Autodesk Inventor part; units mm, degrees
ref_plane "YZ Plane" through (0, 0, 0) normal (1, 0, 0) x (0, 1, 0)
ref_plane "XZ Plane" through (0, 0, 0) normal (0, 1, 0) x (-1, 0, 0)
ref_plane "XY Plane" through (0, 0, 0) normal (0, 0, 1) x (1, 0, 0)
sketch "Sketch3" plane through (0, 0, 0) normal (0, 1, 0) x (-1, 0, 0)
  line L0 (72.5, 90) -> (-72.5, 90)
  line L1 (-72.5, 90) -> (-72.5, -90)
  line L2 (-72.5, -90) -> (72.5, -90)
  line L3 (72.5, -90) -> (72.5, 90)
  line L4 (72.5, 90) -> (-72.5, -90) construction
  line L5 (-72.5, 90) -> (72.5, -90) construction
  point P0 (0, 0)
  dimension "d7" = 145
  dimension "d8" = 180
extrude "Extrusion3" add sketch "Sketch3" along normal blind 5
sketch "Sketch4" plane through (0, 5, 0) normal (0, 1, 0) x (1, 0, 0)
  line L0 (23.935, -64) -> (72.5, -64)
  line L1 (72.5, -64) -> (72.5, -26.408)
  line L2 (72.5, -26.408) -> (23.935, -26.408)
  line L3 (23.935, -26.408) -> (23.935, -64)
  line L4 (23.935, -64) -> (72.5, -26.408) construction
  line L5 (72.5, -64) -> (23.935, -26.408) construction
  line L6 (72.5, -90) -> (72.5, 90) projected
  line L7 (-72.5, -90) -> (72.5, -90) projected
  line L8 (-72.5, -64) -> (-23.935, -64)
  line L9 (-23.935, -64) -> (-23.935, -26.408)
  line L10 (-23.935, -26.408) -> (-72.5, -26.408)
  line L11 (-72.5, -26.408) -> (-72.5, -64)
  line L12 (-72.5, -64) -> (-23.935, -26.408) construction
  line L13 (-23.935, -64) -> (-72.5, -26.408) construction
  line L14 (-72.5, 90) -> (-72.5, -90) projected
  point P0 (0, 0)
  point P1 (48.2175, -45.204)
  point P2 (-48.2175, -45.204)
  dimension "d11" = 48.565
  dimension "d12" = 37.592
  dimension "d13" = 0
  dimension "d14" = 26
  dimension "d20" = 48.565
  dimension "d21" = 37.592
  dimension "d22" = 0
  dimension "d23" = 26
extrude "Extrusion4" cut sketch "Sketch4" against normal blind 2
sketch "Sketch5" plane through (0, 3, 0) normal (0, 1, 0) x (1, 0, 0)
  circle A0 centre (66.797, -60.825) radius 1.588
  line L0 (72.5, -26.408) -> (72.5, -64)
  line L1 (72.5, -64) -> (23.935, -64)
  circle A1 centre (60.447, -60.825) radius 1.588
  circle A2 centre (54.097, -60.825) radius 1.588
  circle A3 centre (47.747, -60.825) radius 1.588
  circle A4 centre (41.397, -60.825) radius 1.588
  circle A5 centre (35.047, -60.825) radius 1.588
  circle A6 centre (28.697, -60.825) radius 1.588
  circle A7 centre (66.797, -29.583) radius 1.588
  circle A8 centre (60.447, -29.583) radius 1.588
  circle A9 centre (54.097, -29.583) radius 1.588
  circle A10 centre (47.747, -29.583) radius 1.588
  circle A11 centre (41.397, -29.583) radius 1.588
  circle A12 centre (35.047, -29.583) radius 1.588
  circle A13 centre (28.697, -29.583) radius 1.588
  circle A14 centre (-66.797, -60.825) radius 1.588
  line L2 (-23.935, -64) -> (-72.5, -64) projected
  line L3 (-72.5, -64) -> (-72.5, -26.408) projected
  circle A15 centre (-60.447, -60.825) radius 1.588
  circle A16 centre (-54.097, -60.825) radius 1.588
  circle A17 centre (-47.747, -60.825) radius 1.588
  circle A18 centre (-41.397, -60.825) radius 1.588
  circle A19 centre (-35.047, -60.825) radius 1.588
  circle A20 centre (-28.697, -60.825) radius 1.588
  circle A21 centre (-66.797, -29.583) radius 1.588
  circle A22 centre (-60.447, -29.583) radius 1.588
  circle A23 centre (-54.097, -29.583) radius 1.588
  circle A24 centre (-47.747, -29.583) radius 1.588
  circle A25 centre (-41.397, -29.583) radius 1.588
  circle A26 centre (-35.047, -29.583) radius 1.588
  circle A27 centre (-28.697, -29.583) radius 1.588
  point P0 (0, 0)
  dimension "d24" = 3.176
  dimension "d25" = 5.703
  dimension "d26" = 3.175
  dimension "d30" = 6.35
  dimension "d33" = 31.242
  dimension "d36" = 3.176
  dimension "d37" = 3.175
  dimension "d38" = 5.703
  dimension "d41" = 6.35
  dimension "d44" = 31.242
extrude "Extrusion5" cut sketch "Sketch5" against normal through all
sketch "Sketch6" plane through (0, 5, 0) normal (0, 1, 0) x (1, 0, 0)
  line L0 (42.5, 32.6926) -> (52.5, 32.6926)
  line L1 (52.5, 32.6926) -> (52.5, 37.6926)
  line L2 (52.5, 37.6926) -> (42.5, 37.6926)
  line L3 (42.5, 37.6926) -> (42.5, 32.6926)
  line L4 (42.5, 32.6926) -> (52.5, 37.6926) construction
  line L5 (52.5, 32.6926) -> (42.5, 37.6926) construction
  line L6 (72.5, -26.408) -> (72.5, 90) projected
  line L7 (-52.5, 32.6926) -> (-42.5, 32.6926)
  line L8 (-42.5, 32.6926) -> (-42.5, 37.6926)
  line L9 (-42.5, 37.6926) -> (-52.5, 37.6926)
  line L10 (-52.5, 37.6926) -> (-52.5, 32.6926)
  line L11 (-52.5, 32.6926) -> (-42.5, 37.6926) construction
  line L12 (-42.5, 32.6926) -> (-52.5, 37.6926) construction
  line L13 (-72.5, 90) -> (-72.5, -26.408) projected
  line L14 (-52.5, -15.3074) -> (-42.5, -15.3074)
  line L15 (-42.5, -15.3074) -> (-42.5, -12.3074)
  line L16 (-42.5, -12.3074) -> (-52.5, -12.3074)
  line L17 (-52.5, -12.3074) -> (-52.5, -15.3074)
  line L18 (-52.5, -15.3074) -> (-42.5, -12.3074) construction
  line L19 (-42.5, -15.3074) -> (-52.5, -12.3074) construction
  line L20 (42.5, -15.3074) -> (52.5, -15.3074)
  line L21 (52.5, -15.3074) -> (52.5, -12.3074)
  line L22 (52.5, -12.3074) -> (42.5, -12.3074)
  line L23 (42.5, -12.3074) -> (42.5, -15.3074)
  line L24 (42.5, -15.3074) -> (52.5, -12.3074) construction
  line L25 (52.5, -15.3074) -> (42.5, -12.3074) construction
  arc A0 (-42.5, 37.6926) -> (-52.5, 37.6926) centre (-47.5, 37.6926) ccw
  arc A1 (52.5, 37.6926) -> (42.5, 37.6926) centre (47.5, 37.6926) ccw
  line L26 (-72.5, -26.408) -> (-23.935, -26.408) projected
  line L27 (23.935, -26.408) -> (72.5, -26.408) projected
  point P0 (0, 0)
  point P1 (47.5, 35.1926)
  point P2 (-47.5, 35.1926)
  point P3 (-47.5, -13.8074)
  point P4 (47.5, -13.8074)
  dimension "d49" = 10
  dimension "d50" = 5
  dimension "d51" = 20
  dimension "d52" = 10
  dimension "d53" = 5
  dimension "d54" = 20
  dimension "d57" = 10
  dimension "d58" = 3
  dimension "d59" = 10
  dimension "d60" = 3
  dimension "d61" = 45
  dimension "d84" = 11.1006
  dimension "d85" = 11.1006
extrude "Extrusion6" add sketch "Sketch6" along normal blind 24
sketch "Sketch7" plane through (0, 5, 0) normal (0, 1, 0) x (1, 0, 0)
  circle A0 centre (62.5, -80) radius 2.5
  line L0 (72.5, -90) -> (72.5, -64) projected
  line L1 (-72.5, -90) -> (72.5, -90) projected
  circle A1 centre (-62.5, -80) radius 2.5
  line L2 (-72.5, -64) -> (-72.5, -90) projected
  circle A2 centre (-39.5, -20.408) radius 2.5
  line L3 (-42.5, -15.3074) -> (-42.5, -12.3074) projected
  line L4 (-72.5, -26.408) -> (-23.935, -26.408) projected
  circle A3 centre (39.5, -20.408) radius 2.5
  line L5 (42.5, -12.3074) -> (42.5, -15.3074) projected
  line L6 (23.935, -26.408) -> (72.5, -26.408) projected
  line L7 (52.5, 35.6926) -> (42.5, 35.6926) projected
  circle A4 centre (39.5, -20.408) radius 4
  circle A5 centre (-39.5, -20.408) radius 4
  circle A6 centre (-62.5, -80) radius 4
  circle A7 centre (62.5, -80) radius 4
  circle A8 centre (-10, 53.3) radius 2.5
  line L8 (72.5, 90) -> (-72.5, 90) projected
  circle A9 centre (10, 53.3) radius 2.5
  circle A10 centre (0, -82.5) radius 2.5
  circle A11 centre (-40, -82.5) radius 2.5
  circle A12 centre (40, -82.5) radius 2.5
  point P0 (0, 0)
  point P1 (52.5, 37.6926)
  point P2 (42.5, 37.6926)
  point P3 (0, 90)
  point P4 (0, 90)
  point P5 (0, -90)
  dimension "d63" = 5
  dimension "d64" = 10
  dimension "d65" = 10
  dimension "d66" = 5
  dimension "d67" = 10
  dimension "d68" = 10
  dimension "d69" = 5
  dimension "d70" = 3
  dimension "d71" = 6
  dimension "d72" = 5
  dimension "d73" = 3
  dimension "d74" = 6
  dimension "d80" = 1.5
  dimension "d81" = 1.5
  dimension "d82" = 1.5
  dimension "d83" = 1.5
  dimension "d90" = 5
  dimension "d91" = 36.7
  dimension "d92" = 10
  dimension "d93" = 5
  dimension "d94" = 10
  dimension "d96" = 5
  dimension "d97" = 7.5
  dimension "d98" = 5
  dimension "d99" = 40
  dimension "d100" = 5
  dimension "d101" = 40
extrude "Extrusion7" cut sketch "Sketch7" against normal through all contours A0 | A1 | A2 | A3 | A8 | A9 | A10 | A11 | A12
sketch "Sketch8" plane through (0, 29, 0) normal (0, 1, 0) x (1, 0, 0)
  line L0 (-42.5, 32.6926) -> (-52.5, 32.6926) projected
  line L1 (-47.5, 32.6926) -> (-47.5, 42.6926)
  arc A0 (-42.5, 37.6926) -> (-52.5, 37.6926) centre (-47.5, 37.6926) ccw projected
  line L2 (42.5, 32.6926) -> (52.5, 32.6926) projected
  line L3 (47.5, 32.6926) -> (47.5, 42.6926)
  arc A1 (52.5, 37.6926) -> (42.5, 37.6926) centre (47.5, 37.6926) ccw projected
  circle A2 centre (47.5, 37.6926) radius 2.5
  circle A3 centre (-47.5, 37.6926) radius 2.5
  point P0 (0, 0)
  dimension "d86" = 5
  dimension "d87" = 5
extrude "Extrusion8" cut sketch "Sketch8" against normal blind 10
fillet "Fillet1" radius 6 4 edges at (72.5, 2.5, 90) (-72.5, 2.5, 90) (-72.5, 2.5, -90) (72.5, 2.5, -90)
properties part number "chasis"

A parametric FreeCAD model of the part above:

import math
import FreeCAD as App
import Part
import Sketcher
from FreeCAD import Vector
Q = App.Units.Quantity


def edges_at(feature, points):
    """Names of the edges that pass closest to the given points."""
    edges = feature.Shape.Edges
    near = lambda p: min(range(len(edges)), key=lambda i: edges[i].distToShape(Part.Vertex(*p))[0])
    return sorted({f"Edge{near(p) + 1}" for p in points})

doc = App.newDocument("Part")
body = doc.addObject("PartDesign::Body", "Body")

sketch1 = body.newObject("Sketcher::SketchObject", "Sketch")
sketch1.AttachmentSupport = (doc.getObject("XZ_Plane"), [""])
sketch1.MapMode = "FlatFace"
sketch1.addGeometry([
    Part.LineSegment(Vector(-72, -90, 0), Vector(-72, 90, 0)),
    Part.LineSegment(Vector(-72, 90, 0), Vector(72, 90, 0)),
    Part.LineSegment(Vector(72, 90, 0), Vector(72, -90, 0)),
    Part.LineSegment(Vector(72, -90, 0), Vector(-72, -90, 0)),
], False)
sketch1.addConstraint([
    Sketcher.Constraint("Coincident", 0, 2, 1, 1),
    Sketcher.Constraint("Coincident", 1, 2, 2, 1),
    Sketcher.Constraint("Coincident", 2, 2, 3, 1),
    Sketcher.Constraint("Coincident", 3, 2, 0, 1),
    Sketcher.Constraint("Vertical", 0),
    Sketcher.Constraint("Horizontal", 1),
    Sketcher.Constraint("Vertical", 2),
    Sketcher.Constraint("Horizontal", 3),
    Sketcher.Constraint("Symmetric", 0, 2, 2, 2, -1, 1),
    Sketcher.Constraint("DistanceX", 1, 1, 1, 2, Q("145 mm")),
    Sketcher.Constraint("DistanceY", 0, 1, 0, 2, Q("180 mm")),
])
pad1 = body.newObject("PartDesign::Pad", "Pad")
pad1.Profile = sketch1
pad1.Length = 5
pad1.Reversed = True

sketch2 = body.newObject("Sketcher::SketchObject", "Sketch001")
sketch2.AttachmentSupport = (doc.getObject("XZ_Plane"), [""])
sketch2.MapMode = "FlatFace"
sketch2.AttachmentOffset = App.Placement(Vector(0, 0, -5), App.Rotation())
sketch2.addGeometry([
    Part.LineSegment(Vector(24, 26, 0), Vector(24, 64, 0)),
    Part.LineSegment(Vector(24, 64, 0), Vector(72, 64, 0)),
    Part.LineSegment(Vector(72, 64, 0), Vector(72, 26, 0)),
    Part.LineSegment(Vector(72, 26, 0), Vector(24, 26, 0)),
    Part.LineSegment(Vector(-72, 26, 0), Vector(-72, 64, 0)),
    Part.LineSegment(Vector(-72, 64, 0), Vector(-24, 64, 0)),
    Part.LineSegment(Vector(-24, 64, 0), Vector(-24, 26, 0)),
    Part.LineSegment(Vector(-24, 26, 0), Vector(-72, 26, 0)),
], False)
sketch2.addConstraint([
    Sketcher.Constraint("Coincident", 0, 2, 1, 1),
    Sketcher.Constraint("Coincident", 1, 2, 2, 1),
    Sketcher.Constraint("Coincident", 2, 2, 3, 1),
    Sketcher.Constraint("Coincident", 3, 2, 0, 1),
    Sketcher.Constraint("Coincident", 4, 2, 5, 1),
    Sketcher.Constraint("Coincident", 5, 2, 6, 1),
    Sketcher.Constraint("Coincident", 6, 2, 7, 1),
    Sketcher.Constraint("Coincident", 7, 2, 4, 1),
    Sketcher.Constraint("Vertical", 0),
    Sketcher.Constraint("Horizontal", 1),
    Sketcher.Constraint("Vertical", 2),
    Sketcher.Constraint("Horizontal", 3),
    Sketcher.Constraint("Vertical", 4),
    Sketcher.Constraint("Horizontal", 5),
    Sketcher.Constraint("Vertical", 6),
    Sketcher.Constraint("Horizontal", 7),
    Sketcher.Constraint("Symmetric", 1, 2, 4, 2, -2),
    Sketcher.Constraint("Symmetric", 3, 2, 6, 2, -2),
    Sketcher.Constraint("DistanceX", 1, 1, 1, 2, Q("48.565 mm")),
    Sketcher.Constraint("DistanceY", 0, 1, 0, 2, Q("37.592 mm")),
    Sketcher.Constraint("DistanceY", -1, 1, 0, 2, Q("64 mm")),
    Sketcher.Constraint("DistanceX", 4, 2, 1, 2, Q("145 mm")),
])
pocket1 = body.newObject("PartDesign::Pocket", "Pocket")
pocket1.Profile = sketch2
pocket1.Length = 2
pocket1.Reversed = True

sketch3 = body.newObject("Sketcher::SketchObject", "Sketch002")
sketch3.AttachmentSupport = (doc.getObject("XZ_Plane"), [""])
sketch3.MapMode = "FlatFace"
sketch3.AttachmentOffset = App.Placement(Vector(0, 0, -3), App.Rotation())
sketch3.addGeometry([
    Part.Circle(Vector(66.8, 60.8, 0), Vector(0, 0, 1), 1.6),
    Part.Circle(Vector(60.4, 60.8, 0), Vector(0, 0, 1), 1.6),
    Part.Circle(Vector(54.1, 60.8, 0), Vector(0, 0, 1), 1.6),
    Part.Circle(Vector(47.7, 60.8, 0), Vector(0, 0, 1), 1.6),
    Part.Circle(Vector(41.4, 60.8, 0), Vector(0, 0, 1), 1.6),
    Part.Circle(Vector(35, 60.8, 0), Vector(0, 0, 1), 1.6),
    Part.Circle(Vector(28.7, 60.8, 0), Vector(0, 0, 1), 1.6),
    Part.Circle(Vector(66.8, 29.6, 0), Vector(0, 0, 1), 1.6),
    Part.Circle(Vector(60.4, 29.6, 0), Vector(0, 0, 1), 1.6),
    Part.Circle(Vector(54.1, 29.6, 0), Vector(0, 0, 1), 1.6),
    Part.Circle(Vector(47.7, 29.6, 0), Vector(0, 0, 1), 1.6),
    Part.Circle(Vector(41.4, 29.6, 0), Vector(0, 0, 1), 1.6),
    Part.Circle(Vector(35, 29.6, 0), Vector(0, 0, 1), 1.6),
    Part.Circle(Vector(28.7, 29.6, 0), Vector(0, 0, 1), 1.6),
    Part.Circle(Vector(-66.8, 60.8, 0), Vector(0, 0, 1), 1.6),
    Part.Circle(Vector(-60.4, 60.8, 0), Vector(0, 0, 1), 1.6),
    Part.Circle(Vector(-54.1, 60.8, 0), Vector(0, 0, 1), 1.6),
    Part.Circle(Vector(-47.7, 60.8, 0), Vector(0, 0, 1), 1.6),
    Part.Circle(Vector(-41.4, 60.8, 0), Vector(0, 0, 1), 1.6),
    Part.Circle(Vector(-35, 60.8, 0), Vector(0, 0, 1), 1.6),
    Part.Circle(Vector(-28.7, 60.8, 0), Vector(0, 0, 1), 1.6),
    Part.Circle(Vector(-66.8, 29.6, 0), Vector(0, 0, 1), 1.6),
    Part.Circle(Vector(-60.4, 29.6, 0), Vector(0, 0, 1), 1.6),
    Part.Circle(Vector(-54.1, 29.6, 0), Vector(0, 0, 1), 1.6),
    Part.Circle(Vector(-47.7, 29.6, 0), Vector(0, 0, 1), 1.6),
    Part.Circle(Vector(-41.4, 29.6, 0), Vector(0, 0, 1), 1.6),
    Part.Circle(Vector(-35, 29.6, 0), Vector(0, 0, 1), 1.6),
    Part.Circle(Vector(-28.7, 29.6, 0), Vector(0, 0, 1), 1.6),
], False)
sketch3.addConstraint([
    Sketcher.Constraint("Equal", 0, 1),
    Sketcher.Constraint("Equal", 1, 2),
    Sketcher.Constraint("Equal", 2, 3),
    Sketcher.Constraint("Equal", 3, 4),
    Sketcher.Constraint("Equal", 4, 5),
    Sketcher.Constraint("Equal", 5, 6),
    Sketcher.Constraint("Equal", 6, 7),
    Sketcher.Constraint("Equal", 7, 8),
    Sketcher.Constraint("Equal", 8, 9),
    Sketcher.Constraint("Equal", 9, 10),
    Sketcher.Constraint("Equal", 10, 11),
    Sketcher.Constraint("Equal", 11, 12),
    Sketcher.Constraint("Equal", 12, 13),
    Sketcher.Constraint("Equal", 13, 14),
    Sketcher.Constraint("Equal", 14, 15),
    Sketcher.Constraint("Equal", 15, 16),
    Sketcher.Constraint("Equal", 16, 17),
    Sketcher.Constraint("Equal", 17, 18),
    Sketcher.Constraint("Equal", 18, 19),
    Sketcher.Constraint("Equal", 19, 20),
    Sketcher.Constraint("Equal", 20, 21),
    Sketcher.Constraint("Equal", 21, 22),
    Sketcher.Constraint("Equal", 22, 23),
    Sketcher.Constraint("Equal", 23, 24),
    Sketcher.Constraint("Equal", 24, 25),
    Sketcher.Constraint("Equal", 25, 26),
    Sketcher.Constraint("Equal", 26, 27),
    Sketcher.Constraint("Symmetric", 0, 3, 14, 3, -2),
    Sketcher.Constraint("Symmetric", 1, 3, 15, 3, -2),
    Sketcher.Constraint("Symmetric", 2, 3, 16, 3, -2),
    Sketcher.Constraint("Symmetric", 3, 3, 17, 3, -2),
    Sketcher.Constraint("Symmetric", 4, 3, 18, 3, -2),
    Sketcher.Constraint("Symmetric", 5, 3, 19, 3, -2),
    Sketcher.Constraint("Symmetric", 6, 3, 20, 3, -2),
    Sketcher.Constraint("Symmetric", 7, 3, 21, 3, -2),
    Sketcher.Constraint("Symmetric", 8, 3, 22, 3, -2),
    Sketcher.Constraint("Symmetric", 9, 3, 23, 3, -2),
    Sketcher.Constraint("Symmetric", 10, 3, 24, 3, -2),
    Sketcher.Constraint("Symmetric", 11, 3, 25, 3, -2),
    Sketcher.Constraint("Symmetric", 12, 3, 26, 3, -2),
    Sketcher.Constraint("Symmetric", 13, 3, 27, 3, -2),
    Sketcher.Constraint("Horizontal", 0, 3, 1, 3),
    Sketcher.Constraint("Horizontal", 1, 3, 2, 3),
    Sketcher.Constraint("Horizontal", 2, 3, 3, 3),
    Sketcher.Constraint("Horizontal", 3, 3, 4, 3),
    Sketcher.Constraint("Horizontal", 4, 3, 5, 3),
    Sketcher.Constraint("Horizontal", 5, 3, 6, 3),
    Sketcher.Constraint("Horizontal", 7, 3, 8, 3),
    Sketcher.Constraint("Horizontal", 8, 3, 9, 3),
    Sketcher.Constraint("Horizontal", 9, 3, 10, 3),
    Sketcher.Constraint("Horizontal", 10, 3, 11, 3),
    Sketcher.Constraint("Horizontal", 11, 3, 12, 3),
    Sketcher.Constraint("Horizontal", 12, 3, 13, 3),
    Sketcher.Constraint("Vertical", 0, 3, 7, 3),
    Sketcher.Constraint("Vertical", 1, 3, 8, 3),
    Sketcher.Constraint("Vertical", 2, 3, 9, 3),
    Sketcher.Constraint("Vertical", 3, 3, 10, 3),
    Sketcher.Constraint("Vertical", 4, 3, 11, 3),
    Sketcher.Constraint("Vertical", 5, 3, 12, 3),
    Sketcher.Constraint("Vertical", 6, 3, 13, 3),
    Sketcher.Constraint("Diameter", 0, Q("3.176 mm")),
    Sketcher.Constraint("DistanceX", 1, 3, 0, 3, Q("6.35 mm")),
    Sketcher.Constraint("DistanceX", 2, 3, 1, 3, Q("6.35 mm")),
    Sketcher.Constraint("DistanceX", 3, 3, 2, 3, Q("6.35 mm")),
    Sketcher.Constraint("DistanceX", 4, 3, 3, 3, Q("6.35 mm")),
    Sketcher.Constraint("DistanceX", 5, 3, 4, 3, Q("6.35 mm")),
    Sketcher.Constraint("DistanceX", 6, 3, 5, 3, Q("6.35 mm")),
    Sketcher.Constraint("DistanceY", 7, 3, 0, 3, Q("31.242 mm")),
    Sketcher.Constraint("DistanceX", -1, 1, 0, 3, Q("66.797 mm")),
    Sketcher.Constraint("DistanceY", -1, 1, 0, 3, Q("60.825 mm")),
])
pocket2 = body.newObject("PartDesign::Pocket", "Pocket001")
pocket2.Profile = sketch3
pocket2.Type = "ThroughAll"
pocket2.Reversed = True

sketch4 = body.newObject("Sketcher::SketchObject", "Sketch003")
sketch4.AttachmentSupport = (doc.getObject("XZ_Plane"), [""])
sketch4.MapMode = "FlatFace"
sketch4.AttachmentOffset = App.Placement(Vector(0, 0, -5), App.Rotation())
sketch4.addGeometry([
    Part.LineSegment(Vector(42.5, -37.7, 0), Vector(42.5, -32.7, 0)),
    Part.LineSegment(Vector(42.5, -32.7, 0), Vector(52.5, -32.7, 0)),
    Part.LineSegment(Vector(52.5, -32.7, 0), Vector(52.5, -37.7, 0)),
    Part.ArcOfCircle(Part.Circle(Vector(47.5, -37.7, 0), Vector(0, 0, 1), 5), math.radians(180), math.radians(360)),
    Part.LineSegment(Vector(-52.5, -37.7, 0), Vector(-52.5, -32.7, 0)),
    Part.LineSegment(Vector(-52.5, -32.7, 0), Vector(-42.5, -32.7, 0)),
    Part.LineSegment(Vector(-42.5, -32.7, 0), Vector(-42.5, -37.7, 0)),
    Part.ArcOfCircle(Part.Circle(Vector(-47.5, -37.7, 0), Vector(0, 0, 1), 5), math.radians(180), math.radians(360)),
    Part.LineSegment(Vector(-52.5, 12.3, 0), Vector(-52.5, 15.3, 0)),
    Part.LineSegment(Vector(-52.5, 15.3, 0), Vector(-42.5, 15.3, 0)),
    Part.LineSegment(Vector(-42.5, 15.3, 0), Vector(-42.5, 12.3, 0)),
    Part.LineSegment(Vector(-42.5, 12.3, 0), Vector(-52.5, 12.3, 0)),
    Part.LineSegment(Vector(42.5, 12.3, 0), Vector(42.5, 15.3, 0)),
    Part.LineSegment(Vector(42.5, 15.3, 0), Vector(52.5, 15.3, 0)),
    Part.LineSegment(Vector(52.5, 15.3, 0), Vector(52.5, 12.3, 0)),
    Part.LineSegment(Vector(52.5, 12.3, 0), Vector(42.5, 12.3, 0)),
], False)
sketch4.addConstraint([
    Sketcher.Constraint("Coincident", 0, 2, 1, 1),
    Sketcher.Constraint("Coincident", 1, 2, 2, 1),
    Sketcher.Constraint("Tangent", 2, 2, 3, 2),
    Sketcher.Constraint("Tangent", 3, 1, 0, 1),
    Sketcher.Constraint("Coincident", 4, 2, 5, 1),
    Sketcher.Constraint("Coincident", 5, 2, 6, 1),
    Sketcher.Constraint("Tangent", 6, 2, 7, 2),
    Sketcher.Constraint("Tangent", 7, 1, 4, 1),
    Sketcher.Constraint("Coincident", 8, 2, 9, 1),
    Sketcher.Constraint("Coincident", 9, 2, 10, 1),
    Sketcher.Constraint("Coincident", 10, 2, 11, 1),
    Sketcher.Constraint("Coincident", 11, 2, 8, 1),
    Sketcher.Constraint("Coincident", 12, 2, 13, 1),
    Sketcher.Constraint("Coincident", 13, 2, 14, 1),
    Sketcher.Constraint("Coincident", 14, 2, 15, 1),
    Sketcher.Constraint("Coincident", 15, 2, 12, 1),
    Sketcher.Constraint("Vertical", 0),
    Sketcher.Constraint("Horizontal", 1),
    Sketcher.Constraint("Vertical", 2),
    Sketcher.Constraint("Vertical", 4),
    Sketcher.Constraint("Horizontal", 5),
    Sketcher.Constraint("Vertical", 6),
    Sketcher.Constraint("Vertical", 8),
    Sketcher.Constraint("Horizontal", 9),
    Sketcher.Constraint("Vertical", 10),
    Sketcher.Constraint("Horizontal", 11),
    Sketcher.Constraint("Vertical", 12),
    Sketcher.Constraint("Horizontal", 13),
    Sketcher.Constraint("Vertical", 14),
    Sketcher.Constraint("Horizontal", 15),
    Sketcher.Constraint("Equal", 3, 7),
    Sketcher.Constraint("Symmetric", 3, 3, 7, 3, -2),
    Sketcher.Constraint("Symmetric", 9, 2, 12, 2, -2),
    Sketcher.Constraint("Symmetric", 11, 2, 14, 2, -2),
    Sketcher.Constraint("Horizontal", 1, 2, 4, 2),
    Sketcher.Constraint("Vertical", 7, 1, 8, 2),
    Sketcher.Constraint("Vertical", 6, 2, 9, 2),
    Sketcher.Constraint("Radius", 3, Q("5 mm")),
    Sketcher.Constraint("DistanceY", 0, 1, 0, 2, Q("5 mm")),
    Sketcher.Constraint("DistanceY", 8, 1, 8, 2, Q("3 mm")),
    Sketcher.Constraint("DistanceY", 5, 2, 10, 2, Q("45 mm")),
    Sketcher.Constraint("DistanceX", 7, 3, 3, 3, Q("95 mm")),
    Sketcher.Constraint("DistanceY", 3, 3, -1, 1, Q("37.6926 mm")),
])
pad2 = body.newObject("PartDesign::Pad", "Pad001")
pad2.Profile = sketch4
pad2.Length = 24
pad2.Reversed = True

sketch5 = body.newObject("Sketcher::SketchObject", "Sketch004")
sketch5.AttachmentSupport = (doc.getObject("XZ_Plane"), [""])
sketch5.MapMode = "FlatFace"
sketch5.AttachmentOffset = App.Placement(Vector(0, 0, -5), App.Rotation())
sketch5.addGeometry([
    Part.Circle(Vector(62.5, 80, 0), Vector(0, 0, 1), 2.5),
    Part.Circle(Vector(-62.5, 80, 0), Vector(0, 0, 1), 2.5),
    Part.Circle(Vector(-39.5, 20.4, 0), Vector(0, 0, 1), 2.5),
    Part.Circle(Vector(39.5, 20.4, 0), Vector(0, 0, 1), 2.5),
    Part.Circle(Vector(-10, -53.3, 0), Vector(0, 0, 1), 2.5),
    Part.Circle(Vector(10, -53.3, 0), Vector(0, 0, 1), 2.5),
    Part.Circle(Vector(0, 82.5, 0), Vector(0, 0, 1), 2.5),
    Part.Circle(Vector(-40, 82.5, 0), Vector(0, 0, 1), 2.5),
    Part.Circle(Vector(40, 82.5, 0), Vector(0, 0, 1), 2.5),
], False)
sketch5.addConstraint([
    Sketcher.Constraint("Equal", 0, 1),
    Sketcher.Constraint("Equal", 1, 2),
    Sketcher.Constraint("Equal", 2, 3),
    Sketcher.Constraint("Equal", 3, 4),
    Sketcher.Constraint("Equal", 4, 5),
    Sketcher.Constraint("Equal", 5, 6),
    Sketcher.Constraint("Equal", 6, 7),
    Sketcher.Constraint("Equal", 7, 8),
    Sketcher.Constraint("Symmetric", 0, 3, 1, 3, -2),
    Sketcher.Constraint("Symmetric", 2, 3, 3, 3, -2),
    Sketcher.Constraint("Symmetric", 4, 3, 5, 3, -2),
    Sketcher.Constraint("Symmetric", 7, 3, 8, 3, -2),
    Sketcher.Constraint("PointOnObject", 6, 3, -2),
    Sketcher.Constraint("Horizontal", 6, 3, 7, 3),
    Sketcher.Constraint("Diameter", 0, Q("5 mm")),
    Sketcher.Constraint("DistanceX", 4, 3, -1, 1, Q("10 mm")),
    Sketcher.Constraint("DistanceX", 7, 3, -1, 1, Q("40 mm")),
    Sketcher.Constraint("DistanceY", -1, 1, 0, 3, Q("80 mm")),
    Sketcher.Constraint("DistanceX", 1, 3, 0, 3, Q("125 mm")),
    Sketcher.Constraint("DistanceX", 1, 3, 2, 3, Q("23 mm")),
    Sketcher.Constraint("DistanceY", 4, 3, -1, 1, Q("53.3 mm")),
    Sketcher.Constraint("DistanceY", -1, 1, 6, 3, Q("82.5 mm")),
    Sketcher.Constraint("DistanceY", -1, 1, 2, 3, Q("20.408 mm")),
])
pocket3 = body.newObject("PartDesign::Pocket", "Pocket002")
pocket3.Profile = sketch5
pocket3.Type = "ThroughAll"
pocket3.Reversed = True

sketch6 = body.newObject("Sketcher::SketchObject", "Sketch005")
sketch6.AttachmentSupport = (doc.getObject("XZ_Plane"), [""])
sketch6.MapMode = "FlatFace"
sketch6.AttachmentOffset = App.Placement(Vector(0, 0, -29), App.Rotation())
sketch6.addGeometry([
    Part.Circle(Vector(-47.5, -37.7, 0), Vector(0, 0, 1), 2.5),
    Part.Circle(Vector(47.5, -37.7, 0), Vector(0, 0, 1), 2.5),
], False)
sketch6.addConstraint([
    Sketcher.Constraint("Equal", 0, 1),
    Sketcher.Constraint("Symmetric", 0, 3, 1, 3, -2),
    Sketcher.Constraint("Diameter", 0, Q("5 mm")),
    Sketcher.Constraint("DistanceX", 0, 3, 1, 3, Q("95 mm")),
    Sketcher.Constraint("DistanceY", 0, 3, -1, 1, Q("37.6926 mm")),
])
pocket4 = body.newObject("PartDesign::Pocket", "Pocket003")
pocket4.Profile = sketch6
pocket4.Length = 10
pocket4.Reversed = True
doc.recompute()

fillet = body.newObject("PartDesign::Fillet", "Fillet")
fillet.Base = (pocket4, edges_at(pocket4, [
    (72.5, 2.5, 90),
    (-72.5, 2.5, 90),
    (-72.5, 2.5, -90),
    (72.5, 2.5, -90),
]))
fillet.Radius = 6

doc.recompute()
